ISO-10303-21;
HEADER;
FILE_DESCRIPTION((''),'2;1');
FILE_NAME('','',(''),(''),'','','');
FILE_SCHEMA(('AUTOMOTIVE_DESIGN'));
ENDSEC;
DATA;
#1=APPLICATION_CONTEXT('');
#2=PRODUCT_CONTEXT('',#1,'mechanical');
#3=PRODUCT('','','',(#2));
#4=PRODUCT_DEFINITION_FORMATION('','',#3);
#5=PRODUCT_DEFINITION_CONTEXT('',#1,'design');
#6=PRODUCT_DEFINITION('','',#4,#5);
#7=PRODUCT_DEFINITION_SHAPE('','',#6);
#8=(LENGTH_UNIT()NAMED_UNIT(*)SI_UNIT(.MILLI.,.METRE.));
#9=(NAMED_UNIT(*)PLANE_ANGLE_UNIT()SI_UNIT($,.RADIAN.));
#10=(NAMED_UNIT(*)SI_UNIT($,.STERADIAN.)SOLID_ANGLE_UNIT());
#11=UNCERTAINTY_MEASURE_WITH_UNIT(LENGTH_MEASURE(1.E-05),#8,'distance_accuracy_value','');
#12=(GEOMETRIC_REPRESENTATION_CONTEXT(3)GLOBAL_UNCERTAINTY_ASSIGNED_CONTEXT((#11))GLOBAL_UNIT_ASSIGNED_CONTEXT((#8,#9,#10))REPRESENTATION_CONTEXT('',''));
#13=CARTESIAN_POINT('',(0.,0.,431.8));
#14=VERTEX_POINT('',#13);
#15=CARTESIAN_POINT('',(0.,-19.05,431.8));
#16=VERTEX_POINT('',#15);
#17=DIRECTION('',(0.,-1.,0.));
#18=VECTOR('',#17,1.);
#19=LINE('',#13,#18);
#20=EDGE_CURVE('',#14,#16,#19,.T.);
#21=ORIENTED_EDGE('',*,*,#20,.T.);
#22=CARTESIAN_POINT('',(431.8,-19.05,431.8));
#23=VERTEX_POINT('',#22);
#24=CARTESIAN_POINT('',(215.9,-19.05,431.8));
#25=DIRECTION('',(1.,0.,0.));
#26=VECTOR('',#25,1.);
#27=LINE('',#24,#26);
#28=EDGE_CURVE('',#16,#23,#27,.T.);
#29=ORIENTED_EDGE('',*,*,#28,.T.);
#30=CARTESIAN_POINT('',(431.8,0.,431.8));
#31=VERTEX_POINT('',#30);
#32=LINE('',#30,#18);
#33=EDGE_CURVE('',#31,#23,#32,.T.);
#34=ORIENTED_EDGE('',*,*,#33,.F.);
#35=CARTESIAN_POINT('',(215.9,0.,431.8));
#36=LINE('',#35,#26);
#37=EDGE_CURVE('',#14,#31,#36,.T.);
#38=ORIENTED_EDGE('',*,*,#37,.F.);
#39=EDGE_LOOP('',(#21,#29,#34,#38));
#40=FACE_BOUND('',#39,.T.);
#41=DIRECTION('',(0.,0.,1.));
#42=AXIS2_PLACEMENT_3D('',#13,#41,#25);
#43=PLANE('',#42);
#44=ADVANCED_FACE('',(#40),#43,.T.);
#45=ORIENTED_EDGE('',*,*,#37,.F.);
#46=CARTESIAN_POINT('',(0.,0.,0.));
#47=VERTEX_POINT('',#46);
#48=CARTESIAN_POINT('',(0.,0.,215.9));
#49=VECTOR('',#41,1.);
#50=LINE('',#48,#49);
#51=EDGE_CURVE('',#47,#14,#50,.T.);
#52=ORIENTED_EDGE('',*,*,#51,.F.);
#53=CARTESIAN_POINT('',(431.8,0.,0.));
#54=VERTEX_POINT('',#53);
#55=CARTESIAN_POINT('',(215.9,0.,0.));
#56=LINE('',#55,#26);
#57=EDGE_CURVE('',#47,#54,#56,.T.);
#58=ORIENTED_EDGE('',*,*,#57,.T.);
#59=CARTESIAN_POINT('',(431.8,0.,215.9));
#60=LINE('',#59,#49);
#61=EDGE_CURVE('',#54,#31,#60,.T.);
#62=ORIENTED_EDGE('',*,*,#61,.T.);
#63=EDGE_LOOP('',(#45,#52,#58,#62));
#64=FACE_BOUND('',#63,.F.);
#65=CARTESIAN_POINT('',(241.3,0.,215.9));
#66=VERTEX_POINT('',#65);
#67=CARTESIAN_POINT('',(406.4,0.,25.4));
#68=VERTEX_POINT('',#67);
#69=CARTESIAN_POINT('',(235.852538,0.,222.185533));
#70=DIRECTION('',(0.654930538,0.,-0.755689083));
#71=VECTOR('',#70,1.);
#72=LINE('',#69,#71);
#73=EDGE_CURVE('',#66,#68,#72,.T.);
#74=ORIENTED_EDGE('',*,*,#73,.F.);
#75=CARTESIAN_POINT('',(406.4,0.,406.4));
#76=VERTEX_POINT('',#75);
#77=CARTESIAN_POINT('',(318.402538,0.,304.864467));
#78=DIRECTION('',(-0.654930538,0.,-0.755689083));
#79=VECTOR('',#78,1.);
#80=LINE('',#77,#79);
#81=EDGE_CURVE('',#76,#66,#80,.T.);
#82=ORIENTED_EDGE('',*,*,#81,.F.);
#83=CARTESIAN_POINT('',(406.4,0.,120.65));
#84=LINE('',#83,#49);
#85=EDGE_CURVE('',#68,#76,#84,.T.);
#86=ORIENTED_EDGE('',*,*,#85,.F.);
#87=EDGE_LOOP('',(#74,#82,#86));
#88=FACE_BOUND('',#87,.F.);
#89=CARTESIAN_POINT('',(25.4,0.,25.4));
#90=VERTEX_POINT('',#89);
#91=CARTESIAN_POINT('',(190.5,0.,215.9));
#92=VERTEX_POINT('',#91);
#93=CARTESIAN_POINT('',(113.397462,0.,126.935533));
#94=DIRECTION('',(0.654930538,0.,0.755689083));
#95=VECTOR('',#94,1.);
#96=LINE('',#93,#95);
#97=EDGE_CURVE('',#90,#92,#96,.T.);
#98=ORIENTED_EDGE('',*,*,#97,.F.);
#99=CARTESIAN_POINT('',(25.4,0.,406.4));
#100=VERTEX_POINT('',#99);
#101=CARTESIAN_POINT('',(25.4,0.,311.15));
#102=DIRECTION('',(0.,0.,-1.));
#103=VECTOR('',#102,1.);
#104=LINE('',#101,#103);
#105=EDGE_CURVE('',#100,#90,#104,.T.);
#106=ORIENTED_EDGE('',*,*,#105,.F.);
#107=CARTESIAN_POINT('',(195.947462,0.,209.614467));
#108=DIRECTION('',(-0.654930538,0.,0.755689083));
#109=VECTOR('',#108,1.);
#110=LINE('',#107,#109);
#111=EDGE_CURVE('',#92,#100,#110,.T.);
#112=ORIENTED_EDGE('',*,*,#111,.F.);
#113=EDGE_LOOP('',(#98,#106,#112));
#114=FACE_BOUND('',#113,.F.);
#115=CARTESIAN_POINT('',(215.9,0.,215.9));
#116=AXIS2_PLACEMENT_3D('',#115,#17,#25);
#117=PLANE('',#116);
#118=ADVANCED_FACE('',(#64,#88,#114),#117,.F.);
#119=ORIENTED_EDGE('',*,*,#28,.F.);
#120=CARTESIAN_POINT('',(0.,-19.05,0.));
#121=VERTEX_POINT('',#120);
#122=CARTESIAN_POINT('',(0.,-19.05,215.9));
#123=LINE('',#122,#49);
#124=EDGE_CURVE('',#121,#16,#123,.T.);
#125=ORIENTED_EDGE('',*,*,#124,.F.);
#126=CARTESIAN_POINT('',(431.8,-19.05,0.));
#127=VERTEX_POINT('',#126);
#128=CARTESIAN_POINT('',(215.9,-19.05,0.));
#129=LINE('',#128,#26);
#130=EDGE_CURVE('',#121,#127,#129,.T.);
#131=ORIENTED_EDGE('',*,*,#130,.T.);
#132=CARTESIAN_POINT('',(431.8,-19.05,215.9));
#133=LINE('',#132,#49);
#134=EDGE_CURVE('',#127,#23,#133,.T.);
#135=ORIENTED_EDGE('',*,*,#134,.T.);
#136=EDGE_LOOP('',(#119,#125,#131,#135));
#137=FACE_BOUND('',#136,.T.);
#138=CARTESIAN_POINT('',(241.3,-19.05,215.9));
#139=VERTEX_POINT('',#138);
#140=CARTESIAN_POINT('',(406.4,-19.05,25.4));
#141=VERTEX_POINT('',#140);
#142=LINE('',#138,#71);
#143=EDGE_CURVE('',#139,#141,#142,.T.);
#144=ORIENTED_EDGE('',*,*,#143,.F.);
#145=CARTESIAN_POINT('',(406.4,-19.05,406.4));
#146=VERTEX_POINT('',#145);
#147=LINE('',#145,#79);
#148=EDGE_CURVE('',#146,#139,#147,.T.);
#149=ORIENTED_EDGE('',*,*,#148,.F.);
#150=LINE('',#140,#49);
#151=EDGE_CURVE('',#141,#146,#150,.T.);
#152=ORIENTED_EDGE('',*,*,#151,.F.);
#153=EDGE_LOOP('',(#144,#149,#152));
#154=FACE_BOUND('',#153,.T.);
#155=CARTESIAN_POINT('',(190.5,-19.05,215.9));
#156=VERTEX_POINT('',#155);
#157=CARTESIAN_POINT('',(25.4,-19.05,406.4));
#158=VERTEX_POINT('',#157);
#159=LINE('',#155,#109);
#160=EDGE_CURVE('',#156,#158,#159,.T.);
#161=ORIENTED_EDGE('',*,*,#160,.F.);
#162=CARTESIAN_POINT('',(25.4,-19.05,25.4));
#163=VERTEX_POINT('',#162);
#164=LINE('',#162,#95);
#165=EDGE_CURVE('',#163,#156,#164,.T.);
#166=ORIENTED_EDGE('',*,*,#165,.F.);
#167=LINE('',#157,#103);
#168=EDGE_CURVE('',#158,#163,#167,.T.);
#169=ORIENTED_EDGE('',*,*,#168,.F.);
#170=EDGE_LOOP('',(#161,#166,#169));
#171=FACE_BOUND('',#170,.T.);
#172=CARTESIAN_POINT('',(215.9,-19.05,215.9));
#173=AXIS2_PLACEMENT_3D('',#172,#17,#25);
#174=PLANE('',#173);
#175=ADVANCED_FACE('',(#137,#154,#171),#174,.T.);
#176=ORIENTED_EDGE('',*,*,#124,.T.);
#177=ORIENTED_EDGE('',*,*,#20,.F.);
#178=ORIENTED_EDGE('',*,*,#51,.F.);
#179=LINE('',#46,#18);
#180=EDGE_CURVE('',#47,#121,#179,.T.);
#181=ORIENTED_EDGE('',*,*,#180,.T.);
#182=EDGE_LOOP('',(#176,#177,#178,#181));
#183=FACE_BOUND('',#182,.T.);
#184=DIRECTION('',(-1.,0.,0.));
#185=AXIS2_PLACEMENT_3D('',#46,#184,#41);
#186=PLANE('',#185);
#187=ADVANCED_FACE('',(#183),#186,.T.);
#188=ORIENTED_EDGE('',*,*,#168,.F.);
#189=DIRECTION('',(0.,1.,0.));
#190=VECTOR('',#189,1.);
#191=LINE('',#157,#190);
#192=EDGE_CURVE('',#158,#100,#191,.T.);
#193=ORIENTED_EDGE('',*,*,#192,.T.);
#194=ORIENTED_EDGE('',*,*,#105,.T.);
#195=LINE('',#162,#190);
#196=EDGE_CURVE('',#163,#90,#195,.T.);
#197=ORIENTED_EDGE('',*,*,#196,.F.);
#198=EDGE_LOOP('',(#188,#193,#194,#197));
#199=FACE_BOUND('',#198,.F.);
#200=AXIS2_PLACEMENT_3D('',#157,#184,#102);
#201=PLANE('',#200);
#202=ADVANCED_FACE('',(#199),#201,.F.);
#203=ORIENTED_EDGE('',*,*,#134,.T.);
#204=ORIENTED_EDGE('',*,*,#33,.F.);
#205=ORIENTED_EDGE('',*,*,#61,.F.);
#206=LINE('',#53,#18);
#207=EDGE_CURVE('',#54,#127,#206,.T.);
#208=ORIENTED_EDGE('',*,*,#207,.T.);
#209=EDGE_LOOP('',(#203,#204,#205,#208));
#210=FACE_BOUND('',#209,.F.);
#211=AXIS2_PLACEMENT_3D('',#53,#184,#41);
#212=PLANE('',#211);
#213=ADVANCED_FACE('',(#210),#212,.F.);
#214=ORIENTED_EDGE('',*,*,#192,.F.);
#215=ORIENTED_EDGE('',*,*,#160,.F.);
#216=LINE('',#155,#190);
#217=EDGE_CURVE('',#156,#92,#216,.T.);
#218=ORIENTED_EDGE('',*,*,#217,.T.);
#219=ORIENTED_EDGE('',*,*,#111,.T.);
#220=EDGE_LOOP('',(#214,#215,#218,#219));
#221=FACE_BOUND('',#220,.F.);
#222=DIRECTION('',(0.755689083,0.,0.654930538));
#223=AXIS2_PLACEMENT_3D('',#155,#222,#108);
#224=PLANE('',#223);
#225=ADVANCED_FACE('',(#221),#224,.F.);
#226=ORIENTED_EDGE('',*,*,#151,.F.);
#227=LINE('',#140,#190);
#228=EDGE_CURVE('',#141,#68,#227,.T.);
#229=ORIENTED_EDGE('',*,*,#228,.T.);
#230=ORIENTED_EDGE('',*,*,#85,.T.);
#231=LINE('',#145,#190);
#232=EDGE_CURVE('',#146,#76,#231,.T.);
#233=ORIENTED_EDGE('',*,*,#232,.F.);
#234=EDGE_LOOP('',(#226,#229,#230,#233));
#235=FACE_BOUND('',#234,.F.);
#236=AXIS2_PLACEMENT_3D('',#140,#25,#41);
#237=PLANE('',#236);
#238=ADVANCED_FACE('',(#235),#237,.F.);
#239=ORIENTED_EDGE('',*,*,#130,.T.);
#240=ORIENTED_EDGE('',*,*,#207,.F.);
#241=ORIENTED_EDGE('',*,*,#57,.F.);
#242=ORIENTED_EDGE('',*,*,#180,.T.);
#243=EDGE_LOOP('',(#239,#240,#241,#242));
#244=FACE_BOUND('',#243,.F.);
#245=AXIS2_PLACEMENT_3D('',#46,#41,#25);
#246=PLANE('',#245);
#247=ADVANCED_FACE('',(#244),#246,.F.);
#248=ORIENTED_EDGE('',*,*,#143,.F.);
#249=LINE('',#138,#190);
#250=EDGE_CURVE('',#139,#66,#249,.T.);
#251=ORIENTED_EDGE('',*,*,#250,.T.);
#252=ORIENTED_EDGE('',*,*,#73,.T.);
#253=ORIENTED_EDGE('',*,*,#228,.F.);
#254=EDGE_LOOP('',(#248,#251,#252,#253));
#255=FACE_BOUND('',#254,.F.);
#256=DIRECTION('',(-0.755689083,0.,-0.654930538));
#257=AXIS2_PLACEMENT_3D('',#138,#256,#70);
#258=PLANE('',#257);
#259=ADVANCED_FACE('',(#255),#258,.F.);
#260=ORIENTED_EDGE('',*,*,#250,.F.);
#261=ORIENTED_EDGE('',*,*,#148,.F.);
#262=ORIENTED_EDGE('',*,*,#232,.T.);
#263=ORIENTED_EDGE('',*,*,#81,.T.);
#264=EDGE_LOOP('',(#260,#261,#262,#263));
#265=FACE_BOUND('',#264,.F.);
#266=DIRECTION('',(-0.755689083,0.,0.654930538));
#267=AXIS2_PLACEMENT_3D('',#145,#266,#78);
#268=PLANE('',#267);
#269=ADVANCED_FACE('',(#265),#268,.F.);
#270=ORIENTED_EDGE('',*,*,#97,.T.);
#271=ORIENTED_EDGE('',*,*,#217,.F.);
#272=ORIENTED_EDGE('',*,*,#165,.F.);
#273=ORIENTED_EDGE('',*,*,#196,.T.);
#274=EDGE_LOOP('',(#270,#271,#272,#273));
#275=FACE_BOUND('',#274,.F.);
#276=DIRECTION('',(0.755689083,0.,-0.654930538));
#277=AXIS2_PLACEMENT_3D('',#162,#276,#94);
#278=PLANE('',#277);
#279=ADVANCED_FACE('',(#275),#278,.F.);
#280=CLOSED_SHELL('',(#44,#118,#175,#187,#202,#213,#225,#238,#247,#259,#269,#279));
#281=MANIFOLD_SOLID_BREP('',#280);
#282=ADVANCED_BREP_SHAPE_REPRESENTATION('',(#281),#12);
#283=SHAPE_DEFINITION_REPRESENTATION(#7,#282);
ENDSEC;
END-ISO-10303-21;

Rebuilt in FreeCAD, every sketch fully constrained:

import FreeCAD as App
import Part
import Sketcher

V = App.Vector
Q = App.Units.Quantity


def add_polygon(sketch, points):
    """Adds a closed chain of lines whose ends are joined by coincident constraints."""
    first, n = sketch.GeometryCount, len(points)
    for a, b in zip(points, points[1:] + points[:1]):
        sketch.addGeometry(Part.LineSegment(App.Vector(*a, 0), App.Vector(*b, 0)), False)
    for i in range(n):
        sketch.addConstraint(Sketcher.Constraint("Coincident", first + i, 2, first + (i + 1) % n, 1))

doc = App.newDocument("Part")
body = doc.addObject("PartDesign::Body", "Body")

# Sketch on XZ plane
sketch1 = body.newObject("Sketcher::SketchObject", "Sketch")
sketch1.AttachmentSupport = (doc.getObject("XZ_Plane"), [""])
sketch1.MapMode = "FlatFace"
add_polygon(sketch1, [(0, 431.8), (0, 0), (431.8, 0), (431.8, 431.8)])  # lines 0-3
sketch1.addConstraint([
    Sketcher.Constraint("Vertical", 0),
    Sketcher.Constraint("Horizontal", 1),
    Sketcher.Constraint("Vertical", 2),
    Sketcher.Constraint("Horizontal", 3),
    Sketcher.Constraint("Coincident", 0, 2, -1, 1),
    Sketcher.Constraint("Equal", 3, 0),
    Sketcher.Constraint("DistanceX", 1, 1, 1, 2, Q("17 in")),
])
pad1 = body.newObject("PartDesign::Pad", "Pad")
pad1.Profile = sketch1
pad1.Length = Q("0.75 in")

# Sketch on XZ plane
sketch2 = body.newObject("Sketcher::SketchObject", "Sketch001")
sketch2.AttachmentSupport = (doc.getObject("XZ_Plane"), [""])
sketch2.MapMode = "FlatFace"
sketch2.AttachmentOffset = App.Placement(V(0, 0, 0.75 * 25.4), App.Rotation())
add_polygon(sketch2, [(190.5, 215.9), (25.4, 406.4), (25.4, 25.4)])  # lines 0-2
add_polygon(sketch2, [(406.4, 406.4), (241.3, 215.9), (406.4, 25.4)])  # lines 3-5
sketch2.addConstraint([
    Sketcher.Constraint("Vertical", 1),
    Sketcher.Constraint("Vertical", 5),
    Sketcher.Constraint("Parallel", 2, 3),
    Sketcher.Constraint("Parallel", 0, 4),
    Sketcher.Constraint("Horizontal", 2, 2, 3, 2),
    Sketcher.Constraint("Horizontal", 1, 2, 4, 2),
    Sketcher.Constraint("Horizontal", 0, 2, 5, 2),
    Sketcher.Constraint("DistanceY", 1, 2, 1, 1, Q("15 in")),
    Sketcher.Constraint("DistanceX", -1, 1, 0, 2, Q("1 in")),
    Sketcher.Constraint("DistanceY", -1, 1, 0, 2, Q("16 in")),
    Sketcher.Constraint("DistanceX", -1, 1, 4, 2, Q("16 in")),
    Sketcher.Constraint("DistanceX", 2, 2, 3, 2, Q("2 in")),
])
pocket1 = body.newObject("PartDesign::Pocket", "Pocket")
pocket1.Profile = sketch2
pocket1.Type = "ThroughAll"

doc.recompute()
